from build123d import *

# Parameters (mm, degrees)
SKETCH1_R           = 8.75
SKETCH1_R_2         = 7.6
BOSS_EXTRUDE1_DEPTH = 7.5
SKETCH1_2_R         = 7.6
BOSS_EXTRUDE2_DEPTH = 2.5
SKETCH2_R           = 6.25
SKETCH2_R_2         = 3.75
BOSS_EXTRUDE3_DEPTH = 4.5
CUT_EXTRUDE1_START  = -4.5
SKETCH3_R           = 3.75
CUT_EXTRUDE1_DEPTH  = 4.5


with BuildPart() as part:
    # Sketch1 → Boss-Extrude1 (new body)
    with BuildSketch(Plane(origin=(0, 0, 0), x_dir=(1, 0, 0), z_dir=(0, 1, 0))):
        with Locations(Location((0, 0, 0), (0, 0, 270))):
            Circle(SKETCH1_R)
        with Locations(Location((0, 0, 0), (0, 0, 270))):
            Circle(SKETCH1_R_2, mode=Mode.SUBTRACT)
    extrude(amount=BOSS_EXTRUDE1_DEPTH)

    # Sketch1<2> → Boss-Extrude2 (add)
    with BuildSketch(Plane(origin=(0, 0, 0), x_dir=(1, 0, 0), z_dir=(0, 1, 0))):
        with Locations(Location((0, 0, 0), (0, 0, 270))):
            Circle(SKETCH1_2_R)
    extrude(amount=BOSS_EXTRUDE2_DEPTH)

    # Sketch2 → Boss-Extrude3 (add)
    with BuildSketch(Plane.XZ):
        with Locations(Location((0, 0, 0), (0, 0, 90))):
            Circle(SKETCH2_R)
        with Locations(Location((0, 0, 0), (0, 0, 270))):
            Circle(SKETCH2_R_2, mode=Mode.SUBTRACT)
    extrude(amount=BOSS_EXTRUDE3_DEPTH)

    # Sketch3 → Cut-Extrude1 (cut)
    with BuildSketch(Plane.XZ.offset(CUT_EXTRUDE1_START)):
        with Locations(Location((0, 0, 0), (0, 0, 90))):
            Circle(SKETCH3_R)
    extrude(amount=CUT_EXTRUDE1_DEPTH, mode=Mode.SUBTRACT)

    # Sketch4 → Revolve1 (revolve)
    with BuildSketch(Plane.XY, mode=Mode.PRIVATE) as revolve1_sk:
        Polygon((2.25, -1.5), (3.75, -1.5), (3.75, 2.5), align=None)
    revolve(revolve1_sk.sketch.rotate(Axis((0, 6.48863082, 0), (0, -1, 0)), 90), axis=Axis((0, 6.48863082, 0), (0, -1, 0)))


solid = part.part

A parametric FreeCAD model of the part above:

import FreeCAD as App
import Part
import Sketcher

doc = App.newDocument("Part")
body = doc.addObject("PartDesign::Body", "Body")

sketch1 = body.newObject("Sketcher::SketchObject", "Sketch")
sketch1.AttachmentSupport = (doc.getObject("XZ_Plane"), [""])
sketch1.MapMode = "FlatFace"
sketch1.addGeometry([
    Part.Circle(App.Vector(0, 0, 0), App.Vector(0, 0, 1), 9),
    Part.Circle(App.Vector(0, 0, 0), App.Vector(0, 0, 1), 8),
], False)
sketch1.addConstraint([
    Sketcher.Constraint("Coincident", 0, 3, -1, 1),
    Sketcher.Constraint("Coincident", 1, 3, -1, 1),
    Sketcher.Constraint("Diameter", 0, 17.5),
    Sketcher.Constraint("Diameter", 1, 15.2),
])
pad1 = body.newObject("PartDesign::Pad", "Pad")
pad1.Profile = sketch1
pad1.Length = 7.5
pad1.Reversed = True

sketch2 = body.newObject("Sketcher::SketchObject", "Sketch001")
sketch2.AttachmentSupport = (doc.getObject("XZ_Plane"), [""])
sketch2.MapMode = "FlatFace"
sketch2.addGeometry(Part.Circle(App.Vector(0, 0, 0), App.Vector(0, 0, 1), 8), False)
sketch2.addConstraint([
    Sketcher.Constraint("Coincident", 0, 3, -1, 1),
    Sketcher.Constraint("Diameter", 0, 15.2),
])
pad2 = body.newObject("PartDesign::Pad", "Pad001")
pad2.Profile = sketch2
pad2.Length = 2.5
pad2.Reversed = True

sketch3 = body.newObject("Sketcher::SketchObject", "Sketch002")
sketch3.AttachmentSupport = (doc.getObject("XZ_Plane"), [""])
sketch3.MapMode = "FlatFace"
sketch3.addGeometry([
    Part.Circle(App.Vector(0, 0, 0), App.Vector(0, 0, 1), 6.2),
    Part.Circle(App.Vector(0, 0, 0), App.Vector(0, 0, 1), 3.8),
], False)
sketch3.addConstraint([
    Sketcher.Constraint("Coincident", 0, 3, -1, 1),
    Sketcher.Constraint("Coincident", 1, 3, -1, 1),
    Sketcher.Constraint("Diameter", 0, 12.5),
    Sketcher.Constraint("Diameter", 1, 7.5),
])
pad3 = body.newObject("PartDesign::Pad", "Pad002")
pad3.Profile = sketch3
pad3.Length = 4.5

sketch4 = body.newObject("Sketcher::SketchObject", "Sketch003")
sketch4.AttachmentSupport = (doc.getObject("XZ_Plane"), [""])
sketch4.MapMode = "FlatFace"
sketch4.AttachmentOffset = App.Placement(App.Vector(0, 0, -4.5), App.Rotation())
sketch4.addGeometry(Part.Circle(App.Vector(0, 0, 0), App.Vector(0, 0, 1), 3.8), False)
sketch4.addConstraint([
    Sketcher.Constraint("Coincident", 0, 3, -1, 1),
    Sketcher.Constraint("Diameter", 0, 7.5),
])
pocket1 = body.newObject("PartDesign::Pocket", "Pocket")
pocket1.Profile = sketch4
pocket1.Length = 4.5
pocket1.Reversed = True

sketch5 = body.newObject("Sketcher::SketchObject", "Sketch004")
sketch5.AttachmentSupport = (doc.getObject("XY_Plane"), [""])
sketch5.MapMode = "FlatFace"
sketch5.addGeometry([
    Part.LineSegment(App.Vector(2.2, -1.5, 0), App.Vector(3.8, -1.5, 0)),
    Part.LineSegment(App.Vector(3.8, -1.5, 0), App.Vector(3.8, 2.5, 0)),
    Part.LineSegment(App.Vector(3.8, 2.5, 0), App.Vector(2.2, -1.5, 0)),
], False)
sketch5.addConstraint([
    Sketcher.Constraint("Coincident", 0, 2, 1, 1),
    Sketcher.Constraint("Coincident", 1, 2, 2, 1),
    Sketcher.Constraint("Coincident", 2, 2, 0, 1),
    Sketcher.Constraint("Horizontal", 0),
    Sketcher.Constraint("Vertical", 1),
    Sketcher.Constraint("DistanceY", 1, 1, 1, 2, 4.0),
    Sketcher.Constraint("DistanceX", 0, 1, 0, 2, 1.5),
    Sketcher.Constraint("DistanceY", 0, 2, -1, 1, 1.5),
    Sketcher.Constraint("DistanceX", -1, 1, 0, 2, 3.75),
])
revolution = body.newObject("PartDesign::Revolution", "Revolution")
revolution.Profile = sketch5
revolution.ReferenceAxis = (sketch5, ["V_Axis"])
revolution.Angle = 360

doc.recompute()
